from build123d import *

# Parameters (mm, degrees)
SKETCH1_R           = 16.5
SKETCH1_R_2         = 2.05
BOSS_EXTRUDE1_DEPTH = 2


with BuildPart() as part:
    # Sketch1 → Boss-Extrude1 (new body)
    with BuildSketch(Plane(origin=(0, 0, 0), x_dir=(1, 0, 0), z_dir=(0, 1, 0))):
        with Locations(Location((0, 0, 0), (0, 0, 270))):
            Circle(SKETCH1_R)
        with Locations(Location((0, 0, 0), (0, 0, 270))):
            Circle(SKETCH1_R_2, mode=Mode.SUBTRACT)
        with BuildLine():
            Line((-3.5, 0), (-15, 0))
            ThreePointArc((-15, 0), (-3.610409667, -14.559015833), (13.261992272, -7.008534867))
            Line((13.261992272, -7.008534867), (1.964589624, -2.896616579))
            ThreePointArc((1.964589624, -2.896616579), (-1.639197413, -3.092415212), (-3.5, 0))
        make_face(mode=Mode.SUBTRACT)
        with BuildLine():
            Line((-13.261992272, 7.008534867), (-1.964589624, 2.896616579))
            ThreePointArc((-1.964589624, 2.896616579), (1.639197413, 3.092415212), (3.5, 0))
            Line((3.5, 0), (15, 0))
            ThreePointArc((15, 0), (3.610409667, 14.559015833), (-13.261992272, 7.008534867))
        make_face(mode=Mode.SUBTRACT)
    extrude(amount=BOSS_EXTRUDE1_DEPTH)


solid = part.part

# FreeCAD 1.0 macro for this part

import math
import FreeCAD as App
import Part
import Sketcher

V = App.Vector
Q = App.Units.Quantity

doc = App.newDocument("Part")
body = doc.addObject("PartDesign::Body", "Body")

sketch1 = body.newObject("Sketcher::SketchObject", "Sketch")
sketch1.AttachmentSupport = (doc.getObject("XZ_Plane"), [""])
sketch1.MapMode = "FlatFace"
sketch1.addGeometry([
    Part.Circle(V(0, 0, 0), V(0, 0, 1), 16.5),
    Part.LineSegment(V(-15, 0, 0), V(-3.5, 0, 0)),
    Part.ArcOfCircle(Part.Circle(V(0, 0, 0), V(0, 0, 1), 3.5), math.radians(55.853467), math.radians(180)),
    Part.LineSegment(V(1.96459, 2.896617, 0), V(13.261992, 7.008535, 0)),
    Part.ArcOfCircle(Part.Circle(V(0, 0, 0), V(0, 0, 1), 15), math.radians(27.855006), math.radians(180)),
    Part.LineSegment(V(-1.96459, -2.896617, 0), V(-13.261992, -7.008535, 0)),
    Part.ArcOfCircle(Part.Circle(V(0, 0, 0), V(0, 0, 1), 15), math.radians(-152.144994), math.radians(0)),
    Part.LineSegment(V(15, 0, 0), V(3.5, 0, 0)),
    Part.ArcOfCircle(Part.Circle(V(0, 0, 0), V(0, 0, 1), 3.5), math.radians(-124.146533), math.radians(0)),
    Part.Circle(V(0, 0, 0), V(0, 0, 1), 2.05),
], False)
sketch1.addConstraint([
    Sketcher.Constraint("Coincident", 1, 2, 2, 2),
    Sketcher.Constraint("Coincident", 2, 1, 3, 1),
    Sketcher.Constraint("Coincident", 3, 2, 4, 1),
    Sketcher.Constraint("Coincident", 4, 2, 1, 1),
    Sketcher.Constraint("Coincident", 5, 2, 6, 1),
    Sketcher.Constraint("Coincident", 6, 2, 7, 1),
    Sketcher.Constraint("Coincident", 7, 2, 8, 2),
    Sketcher.Constraint("Coincident", 8, 1, 5, 1),
    Sketcher.Constraint("Horizontal", 1),
    Sketcher.Constraint("Horizontal", 7),
    Sketcher.Constraint("Coincident", 0, 3, -1, 1),
    Sketcher.Constraint("Coincident", 2, 3, -1, 1),
    Sketcher.Constraint("Coincident", 4, 3, -1, 1),
    Sketcher.Constraint("Coincident", 6, 3, -1, 1),
    Sketcher.Constraint("Coincident", 8, 3, -1, 1),
    Sketcher.Constraint("Coincident", 9, 3, -1, 1),
    Sketcher.Constraint("Equal", 4, 6),
    Sketcher.Constraint("Equal", 2, 8),
    Sketcher.Constraint("PointOnObject", 1, 2, -1),
    Sketcher.Constraint("PointOnObject", 6, 2, -1),
    Sketcher.Constraint("Parallel", 3, 5),
    Sketcher.Constraint("Equal", 3, 5),
    Sketcher.Constraint("Diameter", 0, 33.0),
    Sketcher.Constraint("Radius", 4, 15.0),
    Sketcher.Constraint("Diameter", 9, 4.1),
    Sketcher.Constraint("Radius", 2, 3.5),
    Sketcher.Constraint("Angle", 3, Q("20 deg")),
    Sketcher.Constraint("DistanceX", -1, 1, 2, 1, 1.96459),
])
pad1 = body.newObject("PartDesign::Pad", "Pad")
pad1.Profile = sketch1
pad1.Length = 2
pad1.Reversed = True

doc.recompute()
